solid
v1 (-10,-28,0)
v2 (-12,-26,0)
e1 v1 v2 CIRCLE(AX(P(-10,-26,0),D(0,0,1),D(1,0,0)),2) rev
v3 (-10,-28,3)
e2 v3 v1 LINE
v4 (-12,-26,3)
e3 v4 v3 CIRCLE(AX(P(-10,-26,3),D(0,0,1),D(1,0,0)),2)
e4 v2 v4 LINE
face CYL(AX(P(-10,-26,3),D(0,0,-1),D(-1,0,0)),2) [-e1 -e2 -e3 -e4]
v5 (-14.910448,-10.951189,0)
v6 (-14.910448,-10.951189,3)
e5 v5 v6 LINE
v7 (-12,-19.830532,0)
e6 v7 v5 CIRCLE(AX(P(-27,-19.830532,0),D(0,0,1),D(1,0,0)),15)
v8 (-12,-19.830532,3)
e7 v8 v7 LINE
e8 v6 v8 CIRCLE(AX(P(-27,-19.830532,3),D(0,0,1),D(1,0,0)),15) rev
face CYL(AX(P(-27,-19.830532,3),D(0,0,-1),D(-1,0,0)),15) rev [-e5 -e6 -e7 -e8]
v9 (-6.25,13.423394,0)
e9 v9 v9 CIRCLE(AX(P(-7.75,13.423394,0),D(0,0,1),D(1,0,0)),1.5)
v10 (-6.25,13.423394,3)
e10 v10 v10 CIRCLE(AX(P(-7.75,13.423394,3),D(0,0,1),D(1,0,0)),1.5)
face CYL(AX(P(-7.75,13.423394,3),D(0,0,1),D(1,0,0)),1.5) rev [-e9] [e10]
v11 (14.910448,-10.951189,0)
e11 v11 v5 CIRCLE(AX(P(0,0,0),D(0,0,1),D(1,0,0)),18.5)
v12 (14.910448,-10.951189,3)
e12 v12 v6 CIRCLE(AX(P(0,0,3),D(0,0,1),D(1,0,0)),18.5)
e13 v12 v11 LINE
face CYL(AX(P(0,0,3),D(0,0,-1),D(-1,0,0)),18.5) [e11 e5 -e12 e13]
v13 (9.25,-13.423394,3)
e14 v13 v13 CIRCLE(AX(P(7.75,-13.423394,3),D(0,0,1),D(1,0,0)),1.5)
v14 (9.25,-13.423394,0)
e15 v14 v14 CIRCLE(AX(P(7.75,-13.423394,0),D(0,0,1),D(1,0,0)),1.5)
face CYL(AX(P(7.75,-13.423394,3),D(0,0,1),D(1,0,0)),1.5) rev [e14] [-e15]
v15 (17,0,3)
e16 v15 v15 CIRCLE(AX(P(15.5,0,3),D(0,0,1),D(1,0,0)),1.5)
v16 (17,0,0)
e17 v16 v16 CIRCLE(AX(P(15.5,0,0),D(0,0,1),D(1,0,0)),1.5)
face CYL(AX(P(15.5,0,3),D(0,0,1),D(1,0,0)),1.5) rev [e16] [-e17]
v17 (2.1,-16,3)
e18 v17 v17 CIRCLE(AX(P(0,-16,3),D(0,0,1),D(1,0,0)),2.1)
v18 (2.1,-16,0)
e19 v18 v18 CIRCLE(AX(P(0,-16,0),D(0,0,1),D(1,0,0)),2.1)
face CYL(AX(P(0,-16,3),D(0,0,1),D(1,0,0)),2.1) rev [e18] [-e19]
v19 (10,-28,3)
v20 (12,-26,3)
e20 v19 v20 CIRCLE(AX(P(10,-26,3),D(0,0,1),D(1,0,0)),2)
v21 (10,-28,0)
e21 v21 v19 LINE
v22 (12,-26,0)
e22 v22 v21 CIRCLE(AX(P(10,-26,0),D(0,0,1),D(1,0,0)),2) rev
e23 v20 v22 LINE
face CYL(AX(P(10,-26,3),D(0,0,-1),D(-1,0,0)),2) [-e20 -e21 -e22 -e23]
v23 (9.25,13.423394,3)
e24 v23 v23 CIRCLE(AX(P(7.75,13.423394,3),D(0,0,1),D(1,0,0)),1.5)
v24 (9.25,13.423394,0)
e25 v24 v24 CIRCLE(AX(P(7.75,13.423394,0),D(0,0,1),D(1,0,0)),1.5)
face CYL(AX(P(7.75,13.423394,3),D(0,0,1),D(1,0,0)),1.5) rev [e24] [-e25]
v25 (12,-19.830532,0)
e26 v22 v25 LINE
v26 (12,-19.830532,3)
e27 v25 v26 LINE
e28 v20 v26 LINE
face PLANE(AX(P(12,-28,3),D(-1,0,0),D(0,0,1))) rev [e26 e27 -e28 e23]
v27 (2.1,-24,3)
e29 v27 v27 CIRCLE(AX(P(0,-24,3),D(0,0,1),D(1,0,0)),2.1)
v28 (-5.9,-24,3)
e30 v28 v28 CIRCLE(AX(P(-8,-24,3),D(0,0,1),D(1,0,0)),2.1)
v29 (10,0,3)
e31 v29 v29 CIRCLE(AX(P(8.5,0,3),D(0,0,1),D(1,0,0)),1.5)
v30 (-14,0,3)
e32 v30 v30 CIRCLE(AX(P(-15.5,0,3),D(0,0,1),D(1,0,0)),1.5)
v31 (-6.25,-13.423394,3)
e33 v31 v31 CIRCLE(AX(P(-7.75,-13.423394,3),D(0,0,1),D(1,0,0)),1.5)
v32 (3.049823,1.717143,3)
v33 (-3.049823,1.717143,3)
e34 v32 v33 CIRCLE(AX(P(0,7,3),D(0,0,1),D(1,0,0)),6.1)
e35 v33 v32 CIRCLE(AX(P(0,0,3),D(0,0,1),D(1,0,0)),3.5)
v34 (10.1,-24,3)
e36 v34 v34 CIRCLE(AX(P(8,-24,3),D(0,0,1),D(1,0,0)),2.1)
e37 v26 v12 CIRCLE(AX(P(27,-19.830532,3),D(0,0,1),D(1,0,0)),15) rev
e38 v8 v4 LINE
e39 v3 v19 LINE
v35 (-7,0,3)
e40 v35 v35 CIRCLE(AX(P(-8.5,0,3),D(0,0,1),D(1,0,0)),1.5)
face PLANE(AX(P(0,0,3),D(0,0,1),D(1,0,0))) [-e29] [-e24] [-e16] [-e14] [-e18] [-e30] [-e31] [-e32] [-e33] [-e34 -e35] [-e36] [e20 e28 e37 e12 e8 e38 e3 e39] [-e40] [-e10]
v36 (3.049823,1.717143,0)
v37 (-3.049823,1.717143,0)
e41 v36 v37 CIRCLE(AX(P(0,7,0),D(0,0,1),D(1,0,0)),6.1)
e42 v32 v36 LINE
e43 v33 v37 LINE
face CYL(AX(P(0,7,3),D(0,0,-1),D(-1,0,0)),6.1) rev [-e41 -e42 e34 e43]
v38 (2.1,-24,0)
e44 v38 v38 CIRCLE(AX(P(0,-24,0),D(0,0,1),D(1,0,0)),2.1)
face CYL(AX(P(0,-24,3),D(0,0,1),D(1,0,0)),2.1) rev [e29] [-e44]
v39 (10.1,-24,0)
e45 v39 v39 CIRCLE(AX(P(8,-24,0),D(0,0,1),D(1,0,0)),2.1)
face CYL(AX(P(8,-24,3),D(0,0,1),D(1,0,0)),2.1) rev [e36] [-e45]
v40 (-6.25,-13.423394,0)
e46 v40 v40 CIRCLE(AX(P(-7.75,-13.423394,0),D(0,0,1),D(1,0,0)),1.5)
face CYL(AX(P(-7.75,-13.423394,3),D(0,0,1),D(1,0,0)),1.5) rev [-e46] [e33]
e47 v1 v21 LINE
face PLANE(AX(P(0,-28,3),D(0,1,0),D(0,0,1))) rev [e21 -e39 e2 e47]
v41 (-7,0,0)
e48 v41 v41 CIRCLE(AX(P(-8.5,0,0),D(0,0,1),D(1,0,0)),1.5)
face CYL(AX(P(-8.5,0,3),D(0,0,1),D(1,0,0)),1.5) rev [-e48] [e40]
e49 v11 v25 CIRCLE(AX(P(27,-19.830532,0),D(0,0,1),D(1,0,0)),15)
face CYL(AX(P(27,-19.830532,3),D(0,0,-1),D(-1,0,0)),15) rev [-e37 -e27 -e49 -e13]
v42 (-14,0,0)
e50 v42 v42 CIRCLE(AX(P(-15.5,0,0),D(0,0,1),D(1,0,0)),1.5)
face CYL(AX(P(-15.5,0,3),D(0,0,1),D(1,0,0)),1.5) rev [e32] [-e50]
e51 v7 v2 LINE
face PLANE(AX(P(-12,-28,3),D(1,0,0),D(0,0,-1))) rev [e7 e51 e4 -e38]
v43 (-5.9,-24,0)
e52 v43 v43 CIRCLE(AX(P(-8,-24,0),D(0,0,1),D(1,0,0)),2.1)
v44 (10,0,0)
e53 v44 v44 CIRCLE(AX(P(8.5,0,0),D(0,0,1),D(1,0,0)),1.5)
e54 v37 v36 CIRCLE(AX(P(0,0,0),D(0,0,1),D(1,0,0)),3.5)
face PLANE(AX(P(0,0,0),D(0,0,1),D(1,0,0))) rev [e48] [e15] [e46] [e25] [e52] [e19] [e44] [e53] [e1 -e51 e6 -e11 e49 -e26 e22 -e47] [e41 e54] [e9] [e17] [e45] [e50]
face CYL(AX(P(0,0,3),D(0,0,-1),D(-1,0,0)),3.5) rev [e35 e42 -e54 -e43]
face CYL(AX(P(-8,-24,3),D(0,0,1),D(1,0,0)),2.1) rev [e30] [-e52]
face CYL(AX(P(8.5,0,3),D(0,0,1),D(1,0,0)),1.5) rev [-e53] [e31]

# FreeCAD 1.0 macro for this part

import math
import FreeCAD as App
import Part
import Sketcher


def edges_at(feature, points):
    """Names of the edges that pass closest to the given points."""
    edges = feature.Shape.Edges
    near = lambda p: min(range(len(edges)), key=lambda i: edges[i].distToShape(Part.Vertex(*p))[0])
    return sorted({f"Edge{near(p) + 1}" for p in points})

doc = App.newDocument("Part")
body = doc.addObject("PartDesign::Body", "Body")

# Sketch on XY plane
sketch1 = doc.addObject("Sketcher::SketchObject", "Sketch")
body.addObject(sketch1)
sketch1.AttachmentSupport = (doc.XY_Plane, [""])
sketch1.MapMode = "FlatFace"
sketch1.addGeometry(Part.LineSegment(App.Vector(12, -28, 0), App.Vector(12, -14.1, 0)), False)
sketch1.addGeometry(Part.ArcOfCircle(Part.Circle(App.Vector(0, 0, 0), App.Vector(0, 0, 1), 18.5), math.radians(-50), math.radians(230)), False)
sketch1.addGeometry(Part.LineSegment(App.Vector(-12, -14.1, 0), App.Vector(-12, -28, 0)), False)
sketch1.addGeometry(Part.LineSegment(App.Vector(-12, -28, 0), App.Vector(12, -28, 0)), False)
sketch1.addGeometry(Part.ArcOfCircle(Part.Circle(App.Vector(0, 0, 0), App.Vector(0, 0, 1), 3.5), math.radians(151), math.radians(389)), False)
sketch1.addGeometry(Part.ArcOfCircle(Part.Circle(App.Vector(0, 7, 0), App.Vector(0, 0, 1), 6.1), math.radians(-60), math.radians(240)), False)
sketch1.addConstraint(Sketcher.Constraint("Coincident", 0, 2, 1, 1))
sketch1.addConstraint(Sketcher.Constraint("Coincident", 1, 2, 2, 1))
sketch1.addConstraint(Sketcher.Constraint("Coincident", 2, 2, 3, 1))
sketch1.addConstraint(Sketcher.Constraint("Coincident", 3, 2, 0, 1))
sketch1.addConstraint(Sketcher.Constraint("Coincident", 4, 1, 5, 2))
sketch1.addConstraint(Sketcher.Constraint("Coincident", 5, 1, 4, 2))
sketch1.addConstraint(Sketcher.Constraint("Vertical", 0))
sketch1.addConstraint(Sketcher.Constraint("Vertical", 2))
sketch1.addConstraint(Sketcher.Constraint("Horizontal", 3))
sketch1.addConstraint(Sketcher.Constraint("Coincident", 1, 3, -1, 1))
sketch1.addConstraint(Sketcher.Constraint("Coincident", 4, 3, -1, 1))
sketch1.addConstraint(Sketcher.Constraint("PointOnObject", 5, 3, -2))
sketch1.addConstraint(Sketcher.Constraint("Horizontal", 0, 2, 1, 2))
sketch1.addConstraint(Sketcher.Constraint("Radius", 1, 18.5))
sketch1.addConstraint(Sketcher.Constraint("Radius", 4, 3.5))
sketch1.addConstraint(Sketcher.Constraint("Radius", 5, 6.1))
sketch1.addConstraint(Sketcher.Constraint("DistanceX", 3, 1, 3, 2, 24.0))
sketch1.addConstraint(Sketcher.Constraint("DistanceY", -1, 1, 5, 3, 7.0))
sketch1.addConstraint(Sketcher.Constraint("DistanceY", 2, 2, -1, 1, 28.0))
pad1 = doc.addObject("PartDesign::Pad", "Pad")
body.addObject(pad1)
pad1.Profile = sketch1
pad1.Length = 3

# Sketch on XY plane
sketch2 = doc.addObject("Sketcher::SketchObject", "Sketch001")
body.addObject(sketch2)
sketch2.AttachmentSupport = (doc.XY_Plane, [""])
sketch2.MapMode = "FlatFace"
sketch2.AttachmentOffset = App.Placement(App.Vector(0, 0, 3), App.Rotation())
sketch2.addGeometry(Part.Circle(App.Vector(15.5, 0, 0), App.Vector(0, 0, 1), 1.5), False)
sketch2.addConstraint(Sketcher.Constraint("PointOnObject", 0, 3, -1))
sketch2.addConstraint(Sketcher.Constraint("Diameter", 0, 3.0))
sketch2.addConstraint(Sketcher.Constraint("DistanceX", -1, 1, 0, 3, 15.5))
doc.recompute()
hole = doc.addObject("PartDesign::Hole", "Hole")
body.addObject(hole)
hole.Profile = sketch2
hole.ThreadType = "None"
hole.Diameter = 3
hole.DepthType = "ThroughAll"
doc.recompute()

polarpattern = doc.addObject("PartDesign::PolarPattern", "PolarPattern")
body.addObject(polarpattern)
polarpattern.Originals = [hole]
polarpattern.Axis = (doc.Z_Axis, [""])
polarpattern.Angle = 360
polarpattern.Occurrences = 6
body.Tip = polarpattern

# Sketch on XY plane
sketch3 = doc.addObject("Sketcher::SketchObject", "Sketch002")
body.addObject(sketch3)
sketch3.AttachmentSupport = (doc.XY_Plane, [""])
sketch3.MapMode = "FlatFace"
sketch3.AttachmentOffset = App.Placement(App.Vector(0, 0, 3), App.Rotation())
sketch3.addGeometry(Part.Circle(App.Vector(0, -16, 0), App.Vector(0, 0, 1), 2.1), False)
sketch3.addGeometry(Part.Circle(App.Vector(0, -24, 0), App.Vector(0, 0, 1), 2.1), False)
sketch3.addGeometry(Part.Circle(App.Vector(8, -24, 0), App.Vector(0, 0, 1), 2.1), False)
sketch3.addGeometry(Part.Circle(App.Vector(-8, -24, 0), App.Vector(0, 0, 1), 2.1), False)
sketch3.addConstraint(Sketcher.Constraint("Equal", 0, 1))
sketch3.addConstraint(Sketcher.Constraint("Equal", 1, 2))
sketch3.addConstraint(Sketcher.Constraint("Equal", 2, 3))
sketch3.addConstraint(Sketcher.Constraint("Symmetric", 2, 3, 3, 3, -2))
sketch3.addConstraint(Sketcher.Constraint("PointOnObject", 0, 3, -2))
sketch3.addConstraint(Sketcher.Constraint("PointOnObject", 1, 3, -2))
sketch3.addConstraint(Sketcher.Constraint("Horizontal", 1, 3, 2, 3))
sketch3.addConstraint(Sketcher.Constraint("Diameter", 0, 4.2))
sketch3.addConstraint(Sketcher.Constraint("DistanceY", 0, 3, -1, 1, 16.0))
sketch3.addConstraint(Sketcher.Constraint("DistanceY", 1, 3, -1, 1, 24.0))
sketch3.addConstraint(Sketcher.Constraint("DistanceX", -1, 1, 2, 3, 8.0))
doc.recompute()
hole2 = doc.addObject("PartDesign::Hole", "Hole001")
body.addObject(hole2)
hole2.Profile = sketch3
hole2.ThreadType = "None"
hole2.Diameter = 4.2
hole2.DepthType = "ThroughAll"

# Sketch on XY plane
sketch4 = doc.addObject("Sketcher::SketchObject", "Sketch003")
body.addObject(sketch4)
sketch4.AttachmentSupport = (doc.XY_Plane, [""])
sketch4.MapMode = "FlatFace"
sketch4.AttachmentOffset = App.Placement(App.Vector(0, 0, 3), App.Rotation())
sketch4.addGeometry(Part.Circle(App.Vector(8.5, 0, 0), App.Vector(0, 0, 1), 1.5), False)
sketch4.addGeometry(Part.Circle(App.Vector(-8.5, 0, 0), App.Vector(0, 0, 1), 1.5), False)
sketch4.addConstraint(Sketcher.Constraint("Equal", 0, 1))
sketch4.addConstraint(Sketcher.Constraint("Symmetric", 0, 3, 1, 3, -1, 1))
sketch4.addConstraint(Sketcher.Constraint("PointOnObject", 0, 3, -1))
sketch4.addConstraint(Sketcher.Constraint("Diameter", 0, 3.0))
sketch4.addConstraint(Sketcher.Constraint("DistanceX", 1, 3, 0, 3, 17.0))
doc.recompute()
hole3 = doc.addObject("PartDesign::Hole", "Hole002")
body.addObject(hole3)
hole3.Profile = sketch4
hole3.ThreadType = "None"
hole3.Diameter = 3
hole3.DepthType = "ThroughAll"
doc.recompute()

fillet = doc.addObject("PartDesign::Fillet", "Fillet")
body.addObject(fillet)
fillet.Base = (hole3, edges_at(hole3, [(-12, -14.08, 1.5), (12, -14.08, 1.5)]))
fillet.Radius = 15
doc.recompute()

fillet2 = doc.addObject("PartDesign::Fillet", "Fillet001")
body.addObject(fillet2)
fillet2.Base = (fillet, edges_at(fillet, [(-12, -28, 1.5), (12, -28, 1.5)]))
fillet2.Radius = 2

doc.recompute()
